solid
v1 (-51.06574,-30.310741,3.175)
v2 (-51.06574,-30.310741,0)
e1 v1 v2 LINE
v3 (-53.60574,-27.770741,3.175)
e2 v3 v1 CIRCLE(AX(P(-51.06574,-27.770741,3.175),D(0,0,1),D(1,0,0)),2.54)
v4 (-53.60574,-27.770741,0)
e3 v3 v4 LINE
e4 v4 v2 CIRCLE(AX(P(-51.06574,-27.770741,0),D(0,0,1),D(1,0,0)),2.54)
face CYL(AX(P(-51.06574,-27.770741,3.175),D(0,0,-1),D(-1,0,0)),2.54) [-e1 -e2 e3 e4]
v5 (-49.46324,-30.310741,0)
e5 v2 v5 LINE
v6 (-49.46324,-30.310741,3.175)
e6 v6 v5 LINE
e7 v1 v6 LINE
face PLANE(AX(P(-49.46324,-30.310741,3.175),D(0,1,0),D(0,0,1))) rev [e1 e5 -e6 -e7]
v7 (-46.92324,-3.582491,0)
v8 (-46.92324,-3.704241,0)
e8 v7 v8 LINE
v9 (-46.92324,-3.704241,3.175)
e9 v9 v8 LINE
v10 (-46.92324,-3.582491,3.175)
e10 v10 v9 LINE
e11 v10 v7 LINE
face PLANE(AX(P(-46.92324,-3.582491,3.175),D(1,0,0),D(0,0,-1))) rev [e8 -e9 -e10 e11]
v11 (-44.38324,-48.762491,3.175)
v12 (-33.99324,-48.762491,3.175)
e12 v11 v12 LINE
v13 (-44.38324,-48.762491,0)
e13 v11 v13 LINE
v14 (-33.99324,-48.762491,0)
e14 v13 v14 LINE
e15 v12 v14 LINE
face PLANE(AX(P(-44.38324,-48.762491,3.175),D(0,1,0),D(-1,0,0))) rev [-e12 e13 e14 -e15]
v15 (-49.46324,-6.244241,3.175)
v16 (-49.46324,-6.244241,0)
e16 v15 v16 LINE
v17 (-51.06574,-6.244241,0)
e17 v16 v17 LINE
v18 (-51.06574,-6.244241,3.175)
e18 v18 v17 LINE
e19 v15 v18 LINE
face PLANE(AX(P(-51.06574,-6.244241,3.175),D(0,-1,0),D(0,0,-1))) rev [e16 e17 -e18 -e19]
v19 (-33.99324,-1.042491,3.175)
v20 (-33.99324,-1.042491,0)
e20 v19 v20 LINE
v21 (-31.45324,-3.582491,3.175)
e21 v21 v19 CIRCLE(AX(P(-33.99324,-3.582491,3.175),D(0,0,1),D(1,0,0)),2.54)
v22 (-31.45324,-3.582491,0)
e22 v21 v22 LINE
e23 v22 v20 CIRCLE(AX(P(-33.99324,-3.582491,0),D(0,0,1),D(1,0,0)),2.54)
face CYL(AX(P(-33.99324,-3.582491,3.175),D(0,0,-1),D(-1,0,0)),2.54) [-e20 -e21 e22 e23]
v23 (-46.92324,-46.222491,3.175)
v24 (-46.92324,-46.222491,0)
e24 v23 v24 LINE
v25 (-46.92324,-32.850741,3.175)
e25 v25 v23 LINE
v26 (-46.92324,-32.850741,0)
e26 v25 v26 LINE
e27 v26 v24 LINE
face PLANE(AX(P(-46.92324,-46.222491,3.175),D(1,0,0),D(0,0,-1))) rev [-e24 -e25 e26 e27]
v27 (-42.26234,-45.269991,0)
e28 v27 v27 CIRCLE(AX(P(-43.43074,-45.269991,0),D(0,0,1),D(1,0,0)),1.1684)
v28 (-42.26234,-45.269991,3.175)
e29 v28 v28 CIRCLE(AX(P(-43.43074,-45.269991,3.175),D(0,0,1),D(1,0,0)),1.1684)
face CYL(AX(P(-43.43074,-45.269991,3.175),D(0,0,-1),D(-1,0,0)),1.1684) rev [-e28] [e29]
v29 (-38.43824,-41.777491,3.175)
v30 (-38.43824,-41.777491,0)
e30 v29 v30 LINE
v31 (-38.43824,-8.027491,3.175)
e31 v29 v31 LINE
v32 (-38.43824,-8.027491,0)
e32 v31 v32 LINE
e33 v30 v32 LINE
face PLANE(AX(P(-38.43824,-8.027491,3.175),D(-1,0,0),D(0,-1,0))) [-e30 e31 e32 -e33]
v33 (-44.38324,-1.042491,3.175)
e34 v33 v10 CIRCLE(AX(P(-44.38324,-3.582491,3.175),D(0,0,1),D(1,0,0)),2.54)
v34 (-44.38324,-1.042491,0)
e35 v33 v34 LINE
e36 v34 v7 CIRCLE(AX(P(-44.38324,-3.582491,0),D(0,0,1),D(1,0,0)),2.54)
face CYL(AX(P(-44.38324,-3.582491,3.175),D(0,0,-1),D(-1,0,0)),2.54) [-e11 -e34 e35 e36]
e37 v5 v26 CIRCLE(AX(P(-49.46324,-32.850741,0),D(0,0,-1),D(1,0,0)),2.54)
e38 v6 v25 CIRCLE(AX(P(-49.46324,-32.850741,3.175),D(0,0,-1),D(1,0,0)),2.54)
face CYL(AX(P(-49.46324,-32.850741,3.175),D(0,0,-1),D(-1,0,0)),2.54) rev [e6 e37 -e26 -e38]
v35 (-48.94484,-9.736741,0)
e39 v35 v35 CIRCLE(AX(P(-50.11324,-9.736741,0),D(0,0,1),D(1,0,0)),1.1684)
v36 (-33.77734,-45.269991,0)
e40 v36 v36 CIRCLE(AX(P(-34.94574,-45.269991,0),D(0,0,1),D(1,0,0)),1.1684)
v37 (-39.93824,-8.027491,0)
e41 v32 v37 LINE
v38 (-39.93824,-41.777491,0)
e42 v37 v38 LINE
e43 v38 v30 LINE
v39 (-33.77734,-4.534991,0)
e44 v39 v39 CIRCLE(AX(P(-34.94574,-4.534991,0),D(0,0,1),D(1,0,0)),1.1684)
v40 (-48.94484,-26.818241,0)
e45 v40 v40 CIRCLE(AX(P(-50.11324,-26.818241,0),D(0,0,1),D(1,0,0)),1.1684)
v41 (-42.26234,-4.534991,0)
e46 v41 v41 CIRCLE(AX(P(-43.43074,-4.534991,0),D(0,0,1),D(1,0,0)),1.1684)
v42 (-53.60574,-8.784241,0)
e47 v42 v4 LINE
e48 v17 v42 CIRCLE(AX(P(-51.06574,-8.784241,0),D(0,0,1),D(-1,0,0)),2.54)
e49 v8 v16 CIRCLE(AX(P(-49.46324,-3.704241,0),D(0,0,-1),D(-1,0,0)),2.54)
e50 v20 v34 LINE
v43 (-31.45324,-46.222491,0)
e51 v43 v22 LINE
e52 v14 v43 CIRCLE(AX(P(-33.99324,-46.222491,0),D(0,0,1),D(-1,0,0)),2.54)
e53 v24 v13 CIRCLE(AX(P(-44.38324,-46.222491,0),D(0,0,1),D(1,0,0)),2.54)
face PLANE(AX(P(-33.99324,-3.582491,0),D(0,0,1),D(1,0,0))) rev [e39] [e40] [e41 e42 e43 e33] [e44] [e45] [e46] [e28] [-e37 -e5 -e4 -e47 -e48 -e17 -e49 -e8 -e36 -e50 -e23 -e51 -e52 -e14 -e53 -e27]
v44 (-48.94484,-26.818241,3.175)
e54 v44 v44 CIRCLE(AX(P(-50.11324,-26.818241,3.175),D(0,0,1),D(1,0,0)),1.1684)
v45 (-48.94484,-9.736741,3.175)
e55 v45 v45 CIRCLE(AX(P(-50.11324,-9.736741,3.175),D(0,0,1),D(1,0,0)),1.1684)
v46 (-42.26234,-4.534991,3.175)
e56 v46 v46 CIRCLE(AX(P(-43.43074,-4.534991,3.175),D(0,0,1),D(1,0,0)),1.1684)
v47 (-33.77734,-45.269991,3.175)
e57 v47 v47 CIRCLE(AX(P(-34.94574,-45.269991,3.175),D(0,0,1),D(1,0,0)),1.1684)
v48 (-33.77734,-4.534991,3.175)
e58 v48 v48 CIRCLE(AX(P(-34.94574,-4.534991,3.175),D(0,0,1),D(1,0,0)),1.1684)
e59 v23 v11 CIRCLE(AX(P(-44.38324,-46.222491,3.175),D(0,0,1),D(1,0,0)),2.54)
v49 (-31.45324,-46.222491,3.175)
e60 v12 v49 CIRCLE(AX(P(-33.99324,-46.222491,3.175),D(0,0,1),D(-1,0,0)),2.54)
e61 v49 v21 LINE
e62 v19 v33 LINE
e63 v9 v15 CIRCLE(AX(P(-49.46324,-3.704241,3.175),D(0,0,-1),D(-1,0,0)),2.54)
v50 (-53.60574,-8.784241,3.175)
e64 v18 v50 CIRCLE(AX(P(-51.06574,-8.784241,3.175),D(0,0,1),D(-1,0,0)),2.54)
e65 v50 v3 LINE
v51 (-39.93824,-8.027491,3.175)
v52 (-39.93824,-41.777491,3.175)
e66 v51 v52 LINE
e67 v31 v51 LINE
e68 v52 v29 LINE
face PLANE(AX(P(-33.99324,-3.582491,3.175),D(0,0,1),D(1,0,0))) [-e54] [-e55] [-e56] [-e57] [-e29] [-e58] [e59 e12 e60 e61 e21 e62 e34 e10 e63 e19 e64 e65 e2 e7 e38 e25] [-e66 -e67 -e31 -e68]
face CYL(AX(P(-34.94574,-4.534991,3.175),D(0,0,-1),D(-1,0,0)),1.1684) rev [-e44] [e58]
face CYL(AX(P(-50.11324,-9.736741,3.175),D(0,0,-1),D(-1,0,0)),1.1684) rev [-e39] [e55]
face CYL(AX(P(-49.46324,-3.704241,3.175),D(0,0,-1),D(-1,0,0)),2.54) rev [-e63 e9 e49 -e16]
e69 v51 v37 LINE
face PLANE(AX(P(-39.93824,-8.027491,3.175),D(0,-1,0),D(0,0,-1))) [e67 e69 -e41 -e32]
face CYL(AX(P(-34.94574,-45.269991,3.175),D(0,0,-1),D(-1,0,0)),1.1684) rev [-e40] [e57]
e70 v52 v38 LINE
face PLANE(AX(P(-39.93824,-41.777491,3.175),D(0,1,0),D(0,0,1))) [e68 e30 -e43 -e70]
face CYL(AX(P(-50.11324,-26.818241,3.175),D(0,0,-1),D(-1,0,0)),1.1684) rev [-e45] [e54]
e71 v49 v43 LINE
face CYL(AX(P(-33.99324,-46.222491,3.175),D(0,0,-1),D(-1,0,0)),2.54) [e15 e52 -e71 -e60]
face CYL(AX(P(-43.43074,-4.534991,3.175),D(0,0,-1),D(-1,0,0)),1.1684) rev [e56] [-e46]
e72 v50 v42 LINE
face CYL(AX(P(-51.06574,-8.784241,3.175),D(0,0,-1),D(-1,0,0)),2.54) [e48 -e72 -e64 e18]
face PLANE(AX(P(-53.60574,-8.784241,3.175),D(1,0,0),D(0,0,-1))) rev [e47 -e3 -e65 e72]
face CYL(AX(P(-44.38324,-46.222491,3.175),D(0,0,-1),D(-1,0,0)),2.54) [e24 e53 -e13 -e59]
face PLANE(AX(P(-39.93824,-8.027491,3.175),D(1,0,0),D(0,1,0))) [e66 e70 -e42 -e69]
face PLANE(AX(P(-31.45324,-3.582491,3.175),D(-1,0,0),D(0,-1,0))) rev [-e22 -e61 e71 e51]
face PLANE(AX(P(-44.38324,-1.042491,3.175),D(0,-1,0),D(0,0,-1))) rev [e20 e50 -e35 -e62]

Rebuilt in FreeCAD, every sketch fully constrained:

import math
import FreeCAD as App
import Part
import Sketcher

V = App.Vector
Q = App.Units.Quantity

doc = App.newDocument("Part")
params = doc.addObject("Spreadsheet::Sheet", "Params")
for row, (alias, value) in enumerate([
    ("sketch1_radius", "0.1 in"),
    ("sketch1_diameter", "0.092 in"),
    ("pad1_length", "0.125 in"),
], start=1):
    params.set(f"A{row}", alias)
    params.set(f"B{row}", "=" + value)
    params.setAlias(f"B{row}", alias)

body = doc.addObject("PartDesign::Body", "Body")

# Sketch on XY plane
sketch1 = body.newObject("Sketcher::SketchObject", "Sketch")
sketch1.AttachmentSupport = (doc.getObject("XY_Plane"), [""])
sketch1.MapMode = "FlatFace"
sketch1.addGeometry(Part.LineSegment(V(-31.45, -46.22, 0), V(-31.45, -3.58, 0)), False)
sketch1.addGeometry(Part.ArcOfCircle(Part.Circle(V(-33.99, -3.58, 0), V(0, 0, 1), 2.54), math.radians(0), math.radians(90)), False)
sketch1.addGeometry(Part.LineSegment(V(-33.99, -1.04, 0), V(-44.38, -1.04, 0)), False)
sketch1.addGeometry(Part.ArcOfCircle(Part.Circle(V(-44.38, -3.58, 0), V(0, 0, 1), 2.54), math.radians(90), math.radians(180)), False)
sketch1.addGeometry(Part.LineSegment(V(-46.92, -3.58, 0), V(-46.92, -3.7, 0)), False)
sketch1.addGeometry(Part.ArcOfCircle(Part.Circle(V(-49.46, -3.7, 0), V(0, 0, 1), 2.54), math.radians(-90), math.radians(0)), False)
sketch1.addGeometry(Part.LineSegment(V(-49.46, -6.24, 0), V(-51.07, -6.24, 0)), False)
sketch1.addGeometry(Part.ArcOfCircle(Part.Circle(V(-51.07, -8.78, 0), V(0, 0, 1), 2.54), math.radians(90), math.radians(180)), False)
sketch1.addGeometry(Part.LineSegment(V(-53.61, -8.78, 0), V(-53.61, -27.77, 0)), False)
sketch1.addGeometry(Part.ArcOfCircle(Part.Circle(V(-51.07, -27.77, 0), V(0, 0, 1), 2.54), math.radians(-180), math.radians(-90)), False)
sketch1.addGeometry(Part.LineSegment(V(-51.07, -30.31, 0), V(-49.46, -30.31, 0)), False)
sketch1.addGeometry(Part.ArcOfCircle(Part.Circle(V(-49.46, -32.85, 0), V(0, 0, 1), 2.54), math.radians(0), math.radians(90)), False)
sketch1.addGeometry(Part.LineSegment(V(-46.92, -32.85, 0), V(-46.92, -46.22, 0)), False)
sketch1.addGeometry(Part.ArcOfCircle(Part.Circle(V(-44.38, -46.22, 0), V(0, 0, 1), 2.54), math.radians(-180), math.radians(-90)), False)
sketch1.addGeometry(Part.LineSegment(V(-44.38, -48.76, 0), V(-33.99, -48.76, 0)), False)
sketch1.addGeometry(Part.ArcOfCircle(Part.Circle(V(-33.99, -46.22, 0), V(0, 0, 1), 2.54), math.radians(-90), math.radians(0)), False)
sketch1.addGeometry(Part.Circle(V(-34.95, -45.27, 0), V(0, 0, 1), 1.17), False)
sketch1.addGeometry(Part.Circle(V(-43.43, -45.27, 0), V(0, 0, 1), 1.17), False)
sketch1.addGeometry(Part.Circle(V(-50.11, -26.82, 0), V(0, 0, 1), 1.17), False)
sketch1.addGeometry(Part.LineSegment(V(-39.94, -41.78, 0), V(-39.94, -8.03, 0)), False)
sketch1.addGeometry(Part.LineSegment(V(-39.94, -8.03, 0), V(-38.44, -8.03, 0)), False)
sketch1.addGeometry(Part.LineSegment(V(-38.44, -8.03, 0), V(-38.44, -41.78, 0)), False)
sketch1.addGeometry(Part.LineSegment(V(-38.44, -41.78, 0), V(-39.94, -41.78, 0)), False)
sketch1.addGeometry(Part.Circle(V(-34.95, -4.53, 0), V(0, 0, 1), 1.17), False)
sketch1.addGeometry(Part.Circle(V(-43.43, -4.53, 0), V(0, 0, 1), 1.17), False)
sketch1.addGeometry(Part.Circle(V(-50.11, -9.74, 0), V(0, 0, 1), 1.17), False)
sketch1.addConstraint(Sketcher.Constraint("Tangent", 0, 2, 1, 1))
sketch1.addConstraint(Sketcher.Constraint("Tangent", 1, 2, 2, 1))
sketch1.addConstraint(Sketcher.Constraint("Tangent", 2, 2, 3, 1))
sketch1.addConstraint(Sketcher.Constraint("Tangent", 3, 2, 4, 1))
sketch1.addConstraint(Sketcher.Constraint("Tangent", 4, 2, 5, 2))
sketch1.addConstraint(Sketcher.Constraint("Tangent", 5, 1, 6, 1))
sketch1.addConstraint(Sketcher.Constraint("Tangent", 6, 2, 7, 1))
sketch1.addConstraint(Sketcher.Constraint("Tangent", 7, 2, 8, 1))
sketch1.addConstraint(Sketcher.Constraint("Tangent", 8, 2, 9, 1))
sketch1.addConstraint(Sketcher.Constraint("Tangent", 9, 2, 10, 1))
sketch1.addConstraint(Sketcher.Constraint("Tangent", 10, 2, 11, 2))
sketch1.addConstraint(Sketcher.Constraint("Tangent", 11, 1, 12, 1))
sketch1.addConstraint(Sketcher.Constraint("Tangent", 12, 2, 13, 1))
sketch1.addConstraint(Sketcher.Constraint("Tangent", 13, 2, 14, 1))
sketch1.addConstraint(Sketcher.Constraint("Tangent", 14, 2, 15, 1))
sketch1.addConstraint(Sketcher.Constraint("Tangent", 15, 2, 0, 1))
sketch1.addConstraint(Sketcher.Constraint("Coincident", 19, 2, 20, 1))
sketch1.addConstraint(Sketcher.Constraint("Coincident", 20, 2, 21, 1))
sketch1.addConstraint(Sketcher.Constraint("Coincident", 21, 2, 22, 1))
sketch1.addConstraint(Sketcher.Constraint("Coincident", 22, 2, 19, 1))
sketch1.addConstraint(Sketcher.Constraint("Vertical", 0))
sketch1.addConstraint(Sketcher.Constraint("Horizontal", 2))
sketch1.addConstraint(Sketcher.Constraint("Vertical", 4))
sketch1.addConstraint(Sketcher.Constraint("Horizontal", 6))
sketch1.addConstraint(Sketcher.Constraint("Vertical", 8))
sketch1.addConstraint(Sketcher.Constraint("Horizontal", 10))
sketch1.addConstraint(Sketcher.Constraint("Vertical", 12))
sketch1.addConstraint(Sketcher.Constraint("Horizontal", 14))
sketch1.addConstraint(Sketcher.Constraint("Vertical", 19))
sketch1.addConstraint(Sketcher.Constraint("Horizontal", 20))
sketch1.addConstraint(Sketcher.Constraint("Vertical", 21))
sketch1.addConstraint(Sketcher.Constraint("Horizontal", 22))
sketch1.addConstraint(Sketcher.Constraint("Equal", 1, 3))
sketch1.addConstraint(Sketcher.Constraint("Equal", 3, 5))
sketch1.addConstraint(Sketcher.Constraint("Equal", 5, 7))
sketch1.addConstraint(Sketcher.Constraint("Equal", 7, 9))
sketch1.addConstraint(Sketcher.Constraint("Equal", 9, 11))
sketch1.addConstraint(Sketcher.Constraint("Equal", 11, 13))
sketch1.addConstraint(Sketcher.Constraint("Equal", 13, 15))
sketch1.addConstraint(Sketcher.Constraint("Equal", 16, 17))
sketch1.addConstraint(Sketcher.Constraint("Equal", 17, 18))
sketch1.addConstraint(Sketcher.Constraint("Equal", 18, 23))
sketch1.addConstraint(Sketcher.Constraint("Equal", 23, 24))
sketch1.addConstraint(Sketcher.Constraint("Equal", 24, 25))
sketch1.addConstraint(Sketcher.Constraint("Horizontal", 16, 3, 17, 3))
sketch1.addConstraint(Sketcher.Constraint("Horizontal", 23, 3, 24, 3))
sketch1.addConstraint(Sketcher.Constraint("Vertical", 5, 3, 11, 3))
sketch1.addConstraint(Sketcher.Constraint("Vertical", 16, 3, 23, 3))
sketch1.addConstraint(Sketcher.Constraint("Vertical", 17, 3, 24, 3))
sketch1.addConstraint(Sketcher.Constraint("Vertical", 18, 3, 25, 3))
sketch1.addConstraint(Sketcher.Constraint("Radius", 1, Q("0.1 in")))
sketch1.addConstraint(Sketcher.Constraint("Diameter", 16, Q("0.092 in")))
sketch1.addConstraint(Sketcher.Constraint("DistanceY", 18, 3, 7, 3, Q("0.71 in")))
sketch1.addConstraint(Sketcher.Constraint("DistanceY", 8, 2, 25, 3, Q("0.71 in")))
sketch1.addConstraint(Sketcher.Constraint("DistanceY", 8, 2, 8, 1, Q("0.7475 in")))
sketch1.addConstraint(Sketcher.Constraint("DistanceX", 3, 3, 19, 2, Q("0.175 in")))
sketch1.addConstraint(Sketcher.Constraint("DistanceY", 19, 2, 3, 3, Q("0.175 in")))
sketch1.addConstraint(Sketcher.Constraint("DistanceX", 20, 2, 1, 3, Q("0.175 in")))
sketch1.addConstraint(Sketcher.Constraint("DistanceY", 15, 3, 21, 2, Q("0.175 in")))
sketch1.addConstraint(Sketcher.Constraint("DistanceX", 2, 2, 2, 1, 10.39))
sketch1.addConstraint(Sketcher.Constraint("DistanceX", 6, 2, 6, 1, 1.6025))
sketch1.addConstraint(Sketcher.Constraint("DistanceY", 0, 1, 0, 2, 42.64))
sketch1.addConstraint(Sketcher.Constraint("DistanceX", 16, 3, 15, 3, Q("0.0375 in")))
sketch1.addConstraint(Sketcher.Constraint("DistanceY", 15, 3, 16, 3, Q("0.0375 in")))
sketch1.addConstraint(Sketcher.Constraint("DistanceX", 13, 3, 17, 3, Q("0.0375 in")))
sketch1.addConstraint(Sketcher.Constraint("DistanceX", 9, 3, 18, 3, Q("0.0375 in")))
sketch1.addConstraint(Sketcher.Constraint("DistanceY", 23, 3, 1, 3, Q("0.0375 in")))
sketch1.addConstraint(Sketcher.Constraint("DistanceY", 4, 2, 4, 1, 0.12175))
sketch1.addConstraint(Sketcher.Constraint("DistanceX", 1, 3, -1, 1, 33.99324))
sketch1.addConstraint(Sketcher.Constraint("DistanceY", 1, 3, -1, 1, 3.582491))
sketch1.setExpression("Constraints[50]", "Params.sketch1_radius")
sketch1.setExpression("Constraints[51]", "Params.sketch1_diameter")
pad1 = body.newObject("PartDesign::Pad", "Pad")
pad1.Profile = sketch1
pad1.setExpression("Length", "Params.pad1_length")

doc.recompute()
